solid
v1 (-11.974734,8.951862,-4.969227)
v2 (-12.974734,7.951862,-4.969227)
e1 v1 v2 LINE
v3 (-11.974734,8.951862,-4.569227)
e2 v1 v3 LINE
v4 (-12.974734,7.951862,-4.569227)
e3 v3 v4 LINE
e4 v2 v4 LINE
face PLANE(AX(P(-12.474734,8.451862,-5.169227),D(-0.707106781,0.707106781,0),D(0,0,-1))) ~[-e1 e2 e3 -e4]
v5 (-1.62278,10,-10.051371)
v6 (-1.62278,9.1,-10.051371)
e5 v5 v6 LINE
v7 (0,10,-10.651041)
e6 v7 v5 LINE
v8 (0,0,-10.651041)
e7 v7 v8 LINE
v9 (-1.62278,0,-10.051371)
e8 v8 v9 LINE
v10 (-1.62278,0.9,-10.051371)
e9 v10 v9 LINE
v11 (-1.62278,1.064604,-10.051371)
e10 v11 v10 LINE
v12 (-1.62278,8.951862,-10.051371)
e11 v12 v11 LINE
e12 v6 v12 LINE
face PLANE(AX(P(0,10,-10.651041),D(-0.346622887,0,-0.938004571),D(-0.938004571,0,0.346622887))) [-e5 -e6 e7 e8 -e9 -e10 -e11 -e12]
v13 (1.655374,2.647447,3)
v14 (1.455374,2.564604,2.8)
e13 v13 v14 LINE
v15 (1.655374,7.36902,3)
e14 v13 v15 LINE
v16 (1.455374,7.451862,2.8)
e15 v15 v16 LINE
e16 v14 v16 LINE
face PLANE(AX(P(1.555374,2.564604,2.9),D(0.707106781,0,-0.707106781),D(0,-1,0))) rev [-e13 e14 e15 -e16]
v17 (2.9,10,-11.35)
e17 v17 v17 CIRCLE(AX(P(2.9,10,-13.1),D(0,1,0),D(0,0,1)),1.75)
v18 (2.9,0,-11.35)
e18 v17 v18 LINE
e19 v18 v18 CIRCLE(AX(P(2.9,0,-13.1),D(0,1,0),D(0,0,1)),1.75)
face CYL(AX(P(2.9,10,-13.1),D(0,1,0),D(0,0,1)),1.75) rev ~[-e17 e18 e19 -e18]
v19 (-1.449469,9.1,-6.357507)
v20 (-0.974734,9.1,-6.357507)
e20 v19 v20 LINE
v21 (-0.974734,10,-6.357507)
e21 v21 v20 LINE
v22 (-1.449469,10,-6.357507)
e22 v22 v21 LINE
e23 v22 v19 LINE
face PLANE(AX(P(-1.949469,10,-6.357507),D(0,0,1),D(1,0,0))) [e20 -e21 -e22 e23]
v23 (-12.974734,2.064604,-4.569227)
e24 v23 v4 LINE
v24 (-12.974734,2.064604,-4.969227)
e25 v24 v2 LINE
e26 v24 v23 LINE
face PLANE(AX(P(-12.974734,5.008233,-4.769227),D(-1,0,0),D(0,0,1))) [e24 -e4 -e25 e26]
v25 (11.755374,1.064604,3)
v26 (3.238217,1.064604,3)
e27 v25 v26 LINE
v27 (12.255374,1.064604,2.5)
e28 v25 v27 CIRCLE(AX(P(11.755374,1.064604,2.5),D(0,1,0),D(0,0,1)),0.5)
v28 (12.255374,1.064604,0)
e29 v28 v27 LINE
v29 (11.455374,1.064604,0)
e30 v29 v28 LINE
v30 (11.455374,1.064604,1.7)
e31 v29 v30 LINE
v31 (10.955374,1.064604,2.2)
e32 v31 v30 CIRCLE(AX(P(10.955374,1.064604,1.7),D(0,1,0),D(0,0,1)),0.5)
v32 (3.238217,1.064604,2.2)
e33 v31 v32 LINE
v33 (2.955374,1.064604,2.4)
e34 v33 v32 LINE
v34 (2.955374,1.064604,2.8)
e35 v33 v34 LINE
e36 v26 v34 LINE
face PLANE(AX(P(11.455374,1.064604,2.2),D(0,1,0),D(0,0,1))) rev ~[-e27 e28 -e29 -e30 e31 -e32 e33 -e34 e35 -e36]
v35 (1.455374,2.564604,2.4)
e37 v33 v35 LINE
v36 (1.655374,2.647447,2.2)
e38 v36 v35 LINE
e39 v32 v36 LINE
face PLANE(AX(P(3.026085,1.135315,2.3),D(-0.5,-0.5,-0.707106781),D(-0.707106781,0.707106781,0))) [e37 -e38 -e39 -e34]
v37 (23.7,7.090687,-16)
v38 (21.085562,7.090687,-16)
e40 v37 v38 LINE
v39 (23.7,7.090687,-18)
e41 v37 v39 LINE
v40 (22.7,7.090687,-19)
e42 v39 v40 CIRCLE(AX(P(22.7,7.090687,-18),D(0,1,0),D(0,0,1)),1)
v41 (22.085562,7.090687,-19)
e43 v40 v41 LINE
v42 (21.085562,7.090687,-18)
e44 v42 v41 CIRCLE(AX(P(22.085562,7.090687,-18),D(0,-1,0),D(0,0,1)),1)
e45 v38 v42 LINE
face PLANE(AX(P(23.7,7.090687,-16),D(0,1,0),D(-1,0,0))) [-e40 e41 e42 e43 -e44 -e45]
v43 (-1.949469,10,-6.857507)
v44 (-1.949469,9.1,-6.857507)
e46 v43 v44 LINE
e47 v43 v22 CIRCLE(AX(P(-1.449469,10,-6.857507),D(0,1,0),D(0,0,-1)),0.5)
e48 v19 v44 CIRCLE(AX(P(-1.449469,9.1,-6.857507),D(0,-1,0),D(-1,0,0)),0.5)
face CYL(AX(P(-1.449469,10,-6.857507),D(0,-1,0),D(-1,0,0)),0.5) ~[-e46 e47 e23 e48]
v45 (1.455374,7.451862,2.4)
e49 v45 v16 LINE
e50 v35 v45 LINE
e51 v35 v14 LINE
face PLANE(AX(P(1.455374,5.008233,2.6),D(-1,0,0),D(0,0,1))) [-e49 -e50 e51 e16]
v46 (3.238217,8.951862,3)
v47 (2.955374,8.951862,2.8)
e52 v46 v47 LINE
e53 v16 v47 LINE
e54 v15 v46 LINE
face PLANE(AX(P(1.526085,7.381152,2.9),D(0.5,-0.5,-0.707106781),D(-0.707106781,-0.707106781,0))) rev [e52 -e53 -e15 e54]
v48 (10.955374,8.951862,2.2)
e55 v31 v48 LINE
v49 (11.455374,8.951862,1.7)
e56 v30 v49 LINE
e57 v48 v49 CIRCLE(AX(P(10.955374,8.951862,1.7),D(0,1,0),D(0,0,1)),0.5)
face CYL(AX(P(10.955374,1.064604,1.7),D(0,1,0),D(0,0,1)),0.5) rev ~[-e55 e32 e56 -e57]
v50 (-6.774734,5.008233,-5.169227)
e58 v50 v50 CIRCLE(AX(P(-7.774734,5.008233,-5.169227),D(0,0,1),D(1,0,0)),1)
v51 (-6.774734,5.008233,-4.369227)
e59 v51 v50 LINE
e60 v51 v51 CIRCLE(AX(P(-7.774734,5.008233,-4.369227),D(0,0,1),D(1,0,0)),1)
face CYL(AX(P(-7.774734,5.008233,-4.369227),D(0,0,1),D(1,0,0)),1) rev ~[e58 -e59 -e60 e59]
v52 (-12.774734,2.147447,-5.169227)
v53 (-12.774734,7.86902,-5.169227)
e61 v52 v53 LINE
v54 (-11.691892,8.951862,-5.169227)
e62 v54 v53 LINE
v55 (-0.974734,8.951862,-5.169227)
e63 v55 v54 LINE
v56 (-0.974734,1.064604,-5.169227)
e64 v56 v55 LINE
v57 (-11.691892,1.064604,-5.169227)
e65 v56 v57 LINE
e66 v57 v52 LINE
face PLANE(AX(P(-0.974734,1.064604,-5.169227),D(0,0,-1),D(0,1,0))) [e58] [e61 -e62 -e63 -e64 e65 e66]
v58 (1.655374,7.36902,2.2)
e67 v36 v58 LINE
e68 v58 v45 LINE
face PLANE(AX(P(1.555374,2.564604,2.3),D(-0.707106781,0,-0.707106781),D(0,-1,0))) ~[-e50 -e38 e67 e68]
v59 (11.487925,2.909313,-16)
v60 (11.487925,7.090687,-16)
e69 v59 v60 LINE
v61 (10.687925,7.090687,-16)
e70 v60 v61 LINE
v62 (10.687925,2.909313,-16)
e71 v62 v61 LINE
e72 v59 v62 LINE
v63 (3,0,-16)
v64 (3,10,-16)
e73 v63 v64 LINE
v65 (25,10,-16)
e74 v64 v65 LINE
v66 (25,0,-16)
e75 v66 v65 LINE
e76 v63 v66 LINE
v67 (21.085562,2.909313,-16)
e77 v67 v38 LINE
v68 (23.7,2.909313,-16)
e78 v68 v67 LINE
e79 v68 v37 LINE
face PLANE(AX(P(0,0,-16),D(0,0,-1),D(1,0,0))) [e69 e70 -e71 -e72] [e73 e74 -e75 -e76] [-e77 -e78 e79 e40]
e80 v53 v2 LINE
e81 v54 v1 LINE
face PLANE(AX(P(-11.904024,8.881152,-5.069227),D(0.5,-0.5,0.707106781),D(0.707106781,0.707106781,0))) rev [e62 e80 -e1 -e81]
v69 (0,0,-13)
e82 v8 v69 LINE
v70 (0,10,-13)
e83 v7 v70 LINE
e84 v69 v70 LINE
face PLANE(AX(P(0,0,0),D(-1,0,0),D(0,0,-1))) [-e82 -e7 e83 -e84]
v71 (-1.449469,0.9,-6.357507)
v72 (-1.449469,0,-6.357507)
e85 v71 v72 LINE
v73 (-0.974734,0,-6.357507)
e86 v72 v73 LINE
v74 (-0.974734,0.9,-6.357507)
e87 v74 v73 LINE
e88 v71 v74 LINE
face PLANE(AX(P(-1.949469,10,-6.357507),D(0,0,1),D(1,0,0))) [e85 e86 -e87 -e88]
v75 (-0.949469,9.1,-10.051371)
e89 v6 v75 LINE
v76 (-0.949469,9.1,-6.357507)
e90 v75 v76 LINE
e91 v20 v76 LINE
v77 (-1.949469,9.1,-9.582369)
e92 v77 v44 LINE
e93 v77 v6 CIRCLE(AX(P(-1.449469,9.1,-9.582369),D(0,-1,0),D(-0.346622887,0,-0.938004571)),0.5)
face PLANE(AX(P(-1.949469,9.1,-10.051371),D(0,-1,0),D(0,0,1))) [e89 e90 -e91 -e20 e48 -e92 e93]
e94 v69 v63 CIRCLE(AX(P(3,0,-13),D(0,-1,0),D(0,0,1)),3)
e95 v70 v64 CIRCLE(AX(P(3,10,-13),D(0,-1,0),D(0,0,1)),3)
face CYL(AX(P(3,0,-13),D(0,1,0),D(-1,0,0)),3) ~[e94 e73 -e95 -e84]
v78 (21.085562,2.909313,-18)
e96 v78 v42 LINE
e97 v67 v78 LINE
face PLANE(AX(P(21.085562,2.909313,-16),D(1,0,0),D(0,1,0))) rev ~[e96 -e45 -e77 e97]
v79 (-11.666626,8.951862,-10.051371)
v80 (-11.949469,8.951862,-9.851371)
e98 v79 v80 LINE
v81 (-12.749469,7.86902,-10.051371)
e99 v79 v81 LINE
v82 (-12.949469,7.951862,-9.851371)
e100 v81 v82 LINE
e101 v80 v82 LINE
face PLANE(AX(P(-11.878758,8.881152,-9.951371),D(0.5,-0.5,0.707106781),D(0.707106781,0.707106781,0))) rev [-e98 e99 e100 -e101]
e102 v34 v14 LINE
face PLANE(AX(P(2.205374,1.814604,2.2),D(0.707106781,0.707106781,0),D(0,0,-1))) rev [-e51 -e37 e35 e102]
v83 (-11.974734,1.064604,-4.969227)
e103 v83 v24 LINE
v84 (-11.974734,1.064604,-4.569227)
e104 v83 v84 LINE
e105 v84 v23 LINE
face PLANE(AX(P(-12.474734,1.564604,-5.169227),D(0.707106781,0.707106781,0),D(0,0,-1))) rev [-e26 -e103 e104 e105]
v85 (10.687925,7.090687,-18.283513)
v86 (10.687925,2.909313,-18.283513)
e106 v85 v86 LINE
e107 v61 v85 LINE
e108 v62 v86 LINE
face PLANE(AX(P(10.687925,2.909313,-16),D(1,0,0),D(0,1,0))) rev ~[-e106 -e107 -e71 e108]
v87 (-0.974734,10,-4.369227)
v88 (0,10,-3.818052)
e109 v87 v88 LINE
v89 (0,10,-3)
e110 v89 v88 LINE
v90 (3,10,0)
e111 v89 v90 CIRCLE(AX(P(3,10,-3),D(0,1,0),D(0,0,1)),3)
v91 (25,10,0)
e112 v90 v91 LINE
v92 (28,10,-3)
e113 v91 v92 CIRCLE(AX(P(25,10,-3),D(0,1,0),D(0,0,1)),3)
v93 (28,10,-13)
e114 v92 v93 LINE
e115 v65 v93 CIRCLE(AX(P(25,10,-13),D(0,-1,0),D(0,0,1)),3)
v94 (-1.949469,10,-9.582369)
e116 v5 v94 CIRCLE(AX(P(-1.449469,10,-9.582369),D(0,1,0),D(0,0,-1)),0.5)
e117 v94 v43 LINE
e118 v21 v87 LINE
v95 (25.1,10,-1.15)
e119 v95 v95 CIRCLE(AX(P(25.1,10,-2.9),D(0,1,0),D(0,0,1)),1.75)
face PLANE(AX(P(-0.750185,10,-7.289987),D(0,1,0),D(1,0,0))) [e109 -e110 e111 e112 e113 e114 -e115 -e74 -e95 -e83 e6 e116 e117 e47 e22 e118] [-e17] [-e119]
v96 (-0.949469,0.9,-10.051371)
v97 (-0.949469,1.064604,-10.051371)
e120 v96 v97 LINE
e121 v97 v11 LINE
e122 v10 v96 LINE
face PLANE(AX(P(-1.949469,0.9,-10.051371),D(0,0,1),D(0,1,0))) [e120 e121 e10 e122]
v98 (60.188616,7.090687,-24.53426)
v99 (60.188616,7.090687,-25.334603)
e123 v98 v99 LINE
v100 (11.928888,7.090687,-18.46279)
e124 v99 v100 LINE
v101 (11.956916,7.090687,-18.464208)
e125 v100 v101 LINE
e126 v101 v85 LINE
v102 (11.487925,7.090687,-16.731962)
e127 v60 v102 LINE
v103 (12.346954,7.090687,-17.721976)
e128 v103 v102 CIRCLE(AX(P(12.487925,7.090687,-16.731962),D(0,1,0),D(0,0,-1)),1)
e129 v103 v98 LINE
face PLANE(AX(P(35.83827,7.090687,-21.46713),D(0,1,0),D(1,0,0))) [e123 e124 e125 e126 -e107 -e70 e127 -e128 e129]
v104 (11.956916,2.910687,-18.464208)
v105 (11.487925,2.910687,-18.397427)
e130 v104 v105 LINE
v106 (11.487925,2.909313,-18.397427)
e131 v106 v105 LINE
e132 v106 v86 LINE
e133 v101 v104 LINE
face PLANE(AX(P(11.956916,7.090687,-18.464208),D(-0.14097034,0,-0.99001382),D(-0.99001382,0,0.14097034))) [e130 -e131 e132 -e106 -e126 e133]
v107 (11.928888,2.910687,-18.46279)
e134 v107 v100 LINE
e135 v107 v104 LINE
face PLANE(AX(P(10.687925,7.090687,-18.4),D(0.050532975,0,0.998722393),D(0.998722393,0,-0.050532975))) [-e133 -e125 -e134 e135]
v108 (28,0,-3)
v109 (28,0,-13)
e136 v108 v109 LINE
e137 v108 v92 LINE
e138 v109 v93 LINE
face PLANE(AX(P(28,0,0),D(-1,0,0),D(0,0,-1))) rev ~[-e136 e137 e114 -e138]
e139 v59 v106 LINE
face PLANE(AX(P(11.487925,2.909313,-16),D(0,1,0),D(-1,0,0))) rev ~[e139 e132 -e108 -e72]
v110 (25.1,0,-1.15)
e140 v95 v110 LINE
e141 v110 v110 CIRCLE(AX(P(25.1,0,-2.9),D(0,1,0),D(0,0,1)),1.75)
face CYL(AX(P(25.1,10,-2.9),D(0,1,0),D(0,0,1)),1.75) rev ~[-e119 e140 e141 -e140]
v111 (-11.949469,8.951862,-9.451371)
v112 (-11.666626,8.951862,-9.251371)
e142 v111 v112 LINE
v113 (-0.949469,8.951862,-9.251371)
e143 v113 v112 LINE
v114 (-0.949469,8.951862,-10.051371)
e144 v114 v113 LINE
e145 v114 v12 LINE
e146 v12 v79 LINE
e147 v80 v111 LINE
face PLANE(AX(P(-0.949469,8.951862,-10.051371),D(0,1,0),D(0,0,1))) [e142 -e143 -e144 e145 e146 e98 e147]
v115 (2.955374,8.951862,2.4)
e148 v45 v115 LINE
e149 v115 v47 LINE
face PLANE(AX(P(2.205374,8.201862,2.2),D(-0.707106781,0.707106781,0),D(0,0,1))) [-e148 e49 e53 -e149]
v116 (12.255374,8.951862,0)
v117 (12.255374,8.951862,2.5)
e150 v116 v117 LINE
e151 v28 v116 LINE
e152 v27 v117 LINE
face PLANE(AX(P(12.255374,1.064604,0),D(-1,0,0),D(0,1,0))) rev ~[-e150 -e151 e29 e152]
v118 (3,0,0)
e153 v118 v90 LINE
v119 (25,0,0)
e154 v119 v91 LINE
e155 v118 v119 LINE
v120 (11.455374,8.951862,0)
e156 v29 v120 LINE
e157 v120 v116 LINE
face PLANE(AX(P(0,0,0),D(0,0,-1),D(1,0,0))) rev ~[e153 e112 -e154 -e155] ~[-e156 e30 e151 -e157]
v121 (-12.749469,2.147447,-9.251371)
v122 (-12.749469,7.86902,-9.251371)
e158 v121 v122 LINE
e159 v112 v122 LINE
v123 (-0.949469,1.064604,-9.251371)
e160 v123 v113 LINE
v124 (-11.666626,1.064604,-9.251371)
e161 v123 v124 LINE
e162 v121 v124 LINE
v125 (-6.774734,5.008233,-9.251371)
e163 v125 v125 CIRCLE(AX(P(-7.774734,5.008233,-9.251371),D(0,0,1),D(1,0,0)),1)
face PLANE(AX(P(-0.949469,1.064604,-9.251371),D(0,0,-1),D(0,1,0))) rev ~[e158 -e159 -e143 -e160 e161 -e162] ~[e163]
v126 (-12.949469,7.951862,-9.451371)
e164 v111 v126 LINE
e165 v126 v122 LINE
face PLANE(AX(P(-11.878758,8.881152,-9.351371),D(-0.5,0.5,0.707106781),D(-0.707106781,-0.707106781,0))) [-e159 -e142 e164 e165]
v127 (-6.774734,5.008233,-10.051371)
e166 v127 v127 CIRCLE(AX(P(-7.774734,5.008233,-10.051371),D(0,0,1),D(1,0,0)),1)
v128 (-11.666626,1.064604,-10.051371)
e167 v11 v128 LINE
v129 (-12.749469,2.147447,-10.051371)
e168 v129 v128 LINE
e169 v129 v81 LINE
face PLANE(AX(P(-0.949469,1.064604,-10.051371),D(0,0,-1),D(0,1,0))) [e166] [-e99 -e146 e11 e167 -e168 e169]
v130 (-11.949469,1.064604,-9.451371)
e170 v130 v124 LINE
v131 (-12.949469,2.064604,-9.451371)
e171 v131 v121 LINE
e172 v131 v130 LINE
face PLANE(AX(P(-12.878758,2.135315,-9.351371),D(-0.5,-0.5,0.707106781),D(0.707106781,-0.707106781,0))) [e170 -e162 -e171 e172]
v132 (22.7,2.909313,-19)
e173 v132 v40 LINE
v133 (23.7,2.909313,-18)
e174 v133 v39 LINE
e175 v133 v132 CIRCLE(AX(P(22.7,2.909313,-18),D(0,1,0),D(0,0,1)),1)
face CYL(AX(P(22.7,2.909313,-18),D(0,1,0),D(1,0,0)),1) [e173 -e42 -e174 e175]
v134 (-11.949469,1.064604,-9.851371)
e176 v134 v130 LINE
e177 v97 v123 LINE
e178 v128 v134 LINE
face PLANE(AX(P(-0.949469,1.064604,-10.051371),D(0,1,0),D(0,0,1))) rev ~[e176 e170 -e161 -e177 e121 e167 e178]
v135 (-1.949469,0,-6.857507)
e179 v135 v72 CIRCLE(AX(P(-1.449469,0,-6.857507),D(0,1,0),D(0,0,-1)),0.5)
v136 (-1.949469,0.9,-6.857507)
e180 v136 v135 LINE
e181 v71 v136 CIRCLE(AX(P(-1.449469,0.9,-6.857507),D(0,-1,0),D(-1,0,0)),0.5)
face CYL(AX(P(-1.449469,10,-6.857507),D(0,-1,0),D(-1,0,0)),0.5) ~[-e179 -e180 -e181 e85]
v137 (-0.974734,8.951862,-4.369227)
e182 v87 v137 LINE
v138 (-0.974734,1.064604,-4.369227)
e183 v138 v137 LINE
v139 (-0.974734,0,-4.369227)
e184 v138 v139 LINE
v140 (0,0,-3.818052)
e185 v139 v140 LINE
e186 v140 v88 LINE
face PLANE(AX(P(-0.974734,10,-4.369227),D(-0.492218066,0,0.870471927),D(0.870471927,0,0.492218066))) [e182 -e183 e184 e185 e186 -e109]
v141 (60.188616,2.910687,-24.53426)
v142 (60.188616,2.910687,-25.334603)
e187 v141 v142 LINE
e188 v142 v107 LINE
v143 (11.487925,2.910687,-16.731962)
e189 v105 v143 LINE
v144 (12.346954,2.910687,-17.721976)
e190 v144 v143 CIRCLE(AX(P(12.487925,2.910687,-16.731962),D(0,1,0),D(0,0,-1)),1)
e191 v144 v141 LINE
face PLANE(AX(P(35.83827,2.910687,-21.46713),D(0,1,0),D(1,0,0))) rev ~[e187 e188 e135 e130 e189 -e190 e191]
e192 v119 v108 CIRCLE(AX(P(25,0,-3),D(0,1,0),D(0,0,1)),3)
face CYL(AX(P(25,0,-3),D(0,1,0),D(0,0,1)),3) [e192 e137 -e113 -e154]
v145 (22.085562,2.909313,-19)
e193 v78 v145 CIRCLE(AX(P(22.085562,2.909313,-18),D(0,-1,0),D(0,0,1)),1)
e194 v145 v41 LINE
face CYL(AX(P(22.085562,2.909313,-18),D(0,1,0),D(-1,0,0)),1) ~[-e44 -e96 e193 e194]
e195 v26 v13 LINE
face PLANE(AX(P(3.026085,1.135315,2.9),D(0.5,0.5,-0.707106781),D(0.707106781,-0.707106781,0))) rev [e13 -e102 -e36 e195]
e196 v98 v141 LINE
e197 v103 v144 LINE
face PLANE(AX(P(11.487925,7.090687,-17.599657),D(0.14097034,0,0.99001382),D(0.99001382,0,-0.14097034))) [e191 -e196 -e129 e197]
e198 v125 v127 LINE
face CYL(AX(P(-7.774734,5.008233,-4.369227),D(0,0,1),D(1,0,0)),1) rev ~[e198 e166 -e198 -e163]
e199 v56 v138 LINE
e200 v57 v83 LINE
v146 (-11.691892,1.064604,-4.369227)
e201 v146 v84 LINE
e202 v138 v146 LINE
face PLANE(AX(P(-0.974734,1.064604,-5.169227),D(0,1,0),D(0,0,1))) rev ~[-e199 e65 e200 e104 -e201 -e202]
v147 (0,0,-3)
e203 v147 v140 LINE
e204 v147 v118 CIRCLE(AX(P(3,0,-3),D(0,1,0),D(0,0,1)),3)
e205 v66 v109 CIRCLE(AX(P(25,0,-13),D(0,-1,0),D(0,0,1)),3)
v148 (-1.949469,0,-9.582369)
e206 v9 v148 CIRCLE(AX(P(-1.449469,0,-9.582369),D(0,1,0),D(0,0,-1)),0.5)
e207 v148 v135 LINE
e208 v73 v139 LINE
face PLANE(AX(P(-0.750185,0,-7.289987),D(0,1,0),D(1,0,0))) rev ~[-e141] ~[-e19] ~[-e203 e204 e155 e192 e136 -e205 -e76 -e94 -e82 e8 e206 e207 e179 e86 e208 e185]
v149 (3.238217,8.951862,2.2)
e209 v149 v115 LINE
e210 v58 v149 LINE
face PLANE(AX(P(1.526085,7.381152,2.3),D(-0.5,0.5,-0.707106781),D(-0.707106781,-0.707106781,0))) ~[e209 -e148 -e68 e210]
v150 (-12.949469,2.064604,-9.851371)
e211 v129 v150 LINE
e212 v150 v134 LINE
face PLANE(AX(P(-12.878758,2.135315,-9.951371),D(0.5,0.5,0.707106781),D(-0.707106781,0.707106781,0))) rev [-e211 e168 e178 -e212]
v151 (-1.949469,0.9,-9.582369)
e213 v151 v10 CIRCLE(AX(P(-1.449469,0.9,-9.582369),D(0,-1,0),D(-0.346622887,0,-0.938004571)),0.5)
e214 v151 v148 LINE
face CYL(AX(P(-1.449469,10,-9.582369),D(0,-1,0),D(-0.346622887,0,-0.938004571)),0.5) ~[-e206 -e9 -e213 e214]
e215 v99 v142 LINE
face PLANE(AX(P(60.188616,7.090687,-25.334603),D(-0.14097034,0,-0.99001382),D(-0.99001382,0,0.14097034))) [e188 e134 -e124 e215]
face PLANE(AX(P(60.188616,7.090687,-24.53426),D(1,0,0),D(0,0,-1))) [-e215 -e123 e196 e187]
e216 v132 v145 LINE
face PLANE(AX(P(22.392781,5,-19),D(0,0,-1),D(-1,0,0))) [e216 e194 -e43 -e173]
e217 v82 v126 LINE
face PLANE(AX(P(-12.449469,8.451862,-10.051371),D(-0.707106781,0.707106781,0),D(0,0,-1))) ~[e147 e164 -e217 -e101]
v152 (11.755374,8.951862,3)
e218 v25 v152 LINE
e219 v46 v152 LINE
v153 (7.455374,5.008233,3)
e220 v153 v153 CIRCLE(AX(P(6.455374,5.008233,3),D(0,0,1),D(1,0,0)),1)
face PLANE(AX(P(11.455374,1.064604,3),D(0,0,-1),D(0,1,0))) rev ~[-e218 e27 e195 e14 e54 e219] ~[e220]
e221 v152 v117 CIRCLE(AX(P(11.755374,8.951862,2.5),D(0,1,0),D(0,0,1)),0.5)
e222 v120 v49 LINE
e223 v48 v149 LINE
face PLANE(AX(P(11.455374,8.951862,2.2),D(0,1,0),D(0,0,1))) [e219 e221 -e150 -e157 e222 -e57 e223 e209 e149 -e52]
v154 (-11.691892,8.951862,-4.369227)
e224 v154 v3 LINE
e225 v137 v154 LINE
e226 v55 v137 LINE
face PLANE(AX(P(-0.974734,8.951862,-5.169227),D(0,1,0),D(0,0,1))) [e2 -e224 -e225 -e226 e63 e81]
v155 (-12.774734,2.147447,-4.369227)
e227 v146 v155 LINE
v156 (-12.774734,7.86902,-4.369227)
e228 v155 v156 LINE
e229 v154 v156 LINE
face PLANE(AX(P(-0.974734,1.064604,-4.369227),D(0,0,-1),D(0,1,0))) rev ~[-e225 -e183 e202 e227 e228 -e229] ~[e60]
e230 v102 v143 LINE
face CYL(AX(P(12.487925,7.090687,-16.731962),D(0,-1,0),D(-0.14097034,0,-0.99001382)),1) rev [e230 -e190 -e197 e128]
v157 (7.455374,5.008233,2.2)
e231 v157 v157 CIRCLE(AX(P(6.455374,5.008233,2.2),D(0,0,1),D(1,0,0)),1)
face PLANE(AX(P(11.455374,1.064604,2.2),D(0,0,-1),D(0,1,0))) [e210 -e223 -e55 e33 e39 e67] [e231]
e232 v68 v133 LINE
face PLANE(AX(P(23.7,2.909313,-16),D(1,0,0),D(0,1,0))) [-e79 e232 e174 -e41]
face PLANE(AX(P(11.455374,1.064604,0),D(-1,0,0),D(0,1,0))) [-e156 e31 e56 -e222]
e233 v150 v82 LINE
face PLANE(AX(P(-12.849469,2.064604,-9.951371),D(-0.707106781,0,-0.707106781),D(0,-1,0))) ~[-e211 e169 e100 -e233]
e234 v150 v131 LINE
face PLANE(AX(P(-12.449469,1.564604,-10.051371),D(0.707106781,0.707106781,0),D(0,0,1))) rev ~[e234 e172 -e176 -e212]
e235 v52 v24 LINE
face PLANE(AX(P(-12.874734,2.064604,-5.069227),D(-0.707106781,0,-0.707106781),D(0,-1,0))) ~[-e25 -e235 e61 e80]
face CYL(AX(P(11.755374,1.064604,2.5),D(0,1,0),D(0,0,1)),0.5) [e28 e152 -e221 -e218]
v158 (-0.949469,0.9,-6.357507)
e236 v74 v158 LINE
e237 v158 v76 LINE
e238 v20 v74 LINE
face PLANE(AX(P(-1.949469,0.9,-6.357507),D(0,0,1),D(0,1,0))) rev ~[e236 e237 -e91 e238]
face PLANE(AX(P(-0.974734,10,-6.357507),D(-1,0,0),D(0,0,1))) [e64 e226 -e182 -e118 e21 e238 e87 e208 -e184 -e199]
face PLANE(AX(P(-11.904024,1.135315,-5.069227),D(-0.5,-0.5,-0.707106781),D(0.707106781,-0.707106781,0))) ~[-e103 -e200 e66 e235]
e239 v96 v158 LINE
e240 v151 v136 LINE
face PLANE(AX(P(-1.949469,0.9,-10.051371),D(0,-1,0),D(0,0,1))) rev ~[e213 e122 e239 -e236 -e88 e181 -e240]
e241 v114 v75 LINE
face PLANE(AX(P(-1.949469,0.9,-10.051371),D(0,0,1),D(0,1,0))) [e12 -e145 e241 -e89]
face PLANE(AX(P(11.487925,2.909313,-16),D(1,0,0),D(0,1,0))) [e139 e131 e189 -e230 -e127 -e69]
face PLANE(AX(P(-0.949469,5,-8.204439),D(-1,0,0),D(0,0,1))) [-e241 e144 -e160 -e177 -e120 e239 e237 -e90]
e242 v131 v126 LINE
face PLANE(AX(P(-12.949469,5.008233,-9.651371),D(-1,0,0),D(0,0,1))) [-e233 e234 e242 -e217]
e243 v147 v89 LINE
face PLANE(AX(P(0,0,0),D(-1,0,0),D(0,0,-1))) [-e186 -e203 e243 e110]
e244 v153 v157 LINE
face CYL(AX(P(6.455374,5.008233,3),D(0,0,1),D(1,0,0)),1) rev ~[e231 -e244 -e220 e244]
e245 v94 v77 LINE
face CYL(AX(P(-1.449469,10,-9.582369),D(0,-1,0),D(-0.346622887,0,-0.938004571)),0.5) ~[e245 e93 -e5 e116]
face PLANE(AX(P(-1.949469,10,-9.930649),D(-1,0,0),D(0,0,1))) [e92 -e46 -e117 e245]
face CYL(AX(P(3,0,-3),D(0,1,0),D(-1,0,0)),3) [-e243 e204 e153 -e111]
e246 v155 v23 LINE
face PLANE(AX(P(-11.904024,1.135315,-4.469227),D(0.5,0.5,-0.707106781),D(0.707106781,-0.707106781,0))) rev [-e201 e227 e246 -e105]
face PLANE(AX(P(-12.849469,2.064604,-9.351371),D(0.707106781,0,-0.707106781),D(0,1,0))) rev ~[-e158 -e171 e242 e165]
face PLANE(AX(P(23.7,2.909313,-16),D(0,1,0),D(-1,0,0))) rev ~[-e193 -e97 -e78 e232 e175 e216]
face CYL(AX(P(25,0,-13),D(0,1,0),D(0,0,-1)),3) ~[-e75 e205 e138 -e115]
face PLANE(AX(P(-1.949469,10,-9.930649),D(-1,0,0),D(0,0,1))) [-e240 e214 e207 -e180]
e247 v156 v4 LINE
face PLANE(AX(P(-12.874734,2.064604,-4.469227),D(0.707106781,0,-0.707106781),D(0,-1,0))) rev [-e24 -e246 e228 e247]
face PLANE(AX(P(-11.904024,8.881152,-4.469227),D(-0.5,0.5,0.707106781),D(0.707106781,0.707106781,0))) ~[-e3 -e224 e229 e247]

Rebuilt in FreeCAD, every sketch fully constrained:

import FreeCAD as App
import Part
import Sketcher
from FreeCAD import Vector


def edges_at(feature, points):
    """Names of the edges that pass closest to the given points."""
    edges = feature.Shape.Edges
    near = lambda p: min(range(len(edges)), key=lambda i: edges[i].distToShape(Part.Vertex(*p))[0])
    return sorted({f"Edge{near(p) + 1}" for p in points})

doc = App.newDocument("Part")
body = doc.addObject("PartDesign::Body", "Body")

# Sketch on XZ plane
sketch1 = doc.addObject("Sketcher::SketchObject", "Sketch")
body.addObject(sketch1)
sketch1.AttachmentSupport = (doc.XZ_Plane, [""])
sketch1.MapMode = "FlatFace"
sketch1.addGeometry([
    Part.LineSegment(Vector(0, -16, 0), Vector(0, 0, 0)),
    Part.LineSegment(Vector(0, 0, 0), Vector(28, 0, 0)),
    Part.LineSegment(Vector(28, 0, 0), Vector(28, -16, 0)),
    Part.LineSegment(Vector(28, -16, 0), Vector(0, -16, 0)),
], False)
sketch1.addConstraint([
    Sketcher.Constraint("Coincident", 0, 2, 1, 1),
    Sketcher.Constraint("Coincident", 1, 2, 2, 1),
    Sketcher.Constraint("Coincident", 2, 2, 3, 1),
    Sketcher.Constraint("Coincident", 3, 2, 0, 1),
    Sketcher.Constraint("Vertical", 0),
    Sketcher.Constraint("Horizontal", 1),
    Sketcher.Constraint("Vertical", 2),
    Sketcher.Constraint("Horizontal", 3),
    Sketcher.Constraint("Coincident", 0, 2, -1, 1),
    Sketcher.Constraint("DistanceX", 1, 1, 1, 2, 28.0),
    Sketcher.Constraint("DistanceY", 0, 1, 0, 2, 16.0),
])
pad1 = doc.addObject("PartDesign::Pad", "Pad")
body.addObject(pad1)
pad1.Profile = sketch1
pad1.Length = 10
pad1.Reversed = True

# Sketch on XZ plane
sketch2 = doc.addObject("Sketcher::SketchObject", "Sketch001")
body.addObject(sketch2)
sketch2.AttachmentSupport = (doc.XZ_Plane, [""])
sketch2.MapMode = "FlatFace"
sketch2.AttachmentOffset = App.Placement(Vector(0, 0, -10), App.Rotation())
sketch2.addGeometry([
    Part.Circle(Vector(2.9, -13.1, 0), Vector(0, 0, 1), 1.75),
    Part.Circle(Vector(25.1, -2.9, 0), Vector(0, 0, 1), 1.75),
], False)
sketch2.addConstraint([
    Sketcher.Constraint("Equal", 0, 1),
    Sketcher.Constraint("Diameter", 0, 3.5),
    Sketcher.Constraint("DistanceX", -1, 1, 0, 3, 2.9),
    Sketcher.Constraint("DistanceY", 0, 3, -1, 1, 13.1),
    Sketcher.Constraint("DistanceX", -1, 1, 1, 3, 25.1),
    Sketcher.Constraint("DistanceY", 1, 3, -1, 1, 2.9),
])
pocket1 = doc.addObject("PartDesign::Pocket", "Pocket")
body.addObject(pocket1)
pocket1.Profile = sketch2
pocket1.Length = 10
pocket1.Reversed = True
doc.recompute()

fillet = doc.addObject("PartDesign::Fillet", "Fillet")
body.addObject(fillet)
fillet.Base = (pocket1, edges_at(pocket1, [(0, 5, -16), (28, 5, 0)]))
fillet.Radius = 3
doc.recompute()

fillet2 = doc.addObject("PartDesign::Fillet", "Fillet001")
body.addObject(fillet2)
fillet2.Base = (fillet, edges_at(fillet, [(28, 5, -16), (0, 5, 0)]))
fillet2.Radius = 3

# Sketch on XZ plane
sketch3 = doc.addObject("Sketcher::SketchObject", "Sketch002")
body.addObject(sketch3)
sketch3.AttachmentSupport = (doc.XZ_Plane, [""])
sketch3.MapMode = "FlatFace"
sketch3.AttachmentOffset = App.Placement(Vector(0, 0, -10), App.Rotation())
sketch3.addGeometry([
    Part.LineSegment(Vector(0, -10.651041, 0), Vector(-1.949469, -9.930649, 0)),  # 0
    Part.LineSegment(Vector(-1.949469, -9.930649, 0), Vector(-1.949469, -6.357507, 0)),  # 1
    Part.LineSegment(Vector(-1.949469, -6.357507, 0), Vector(-0.974734, -6.357507, 0)),  # 2
    Part.LineSegment(Vector(-0.974734, -6.357507, 0), Vector(-0.974734, -4.369227, 0)),  # 3
    Part.LineSegment(Vector(-0.974734, -4.369227, 0), Vector(0.098483, -3.762364, 0)),  # 4
    Part.LineSegment(Vector(0.098483, -3.762364, 0), Vector(0, -10.651041, 0)),  # 5
], False)
sketch3.addConstraint([
    Sketcher.Constraint("Coincident", 0, 2, 1, 1),
    Sketcher.Constraint("Coincident", 1, 2, 2, 1),
    Sketcher.Constraint("Coincident", 2, 2, 3, 1),
    Sketcher.Constraint("Coincident", 3, 2, 4, 1),
    Sketcher.Constraint("Coincident", 4, 2, 5, 1),
    Sketcher.Constraint("Coincident", 5, 2, 0, 1),
    Sketcher.Constraint("Vertical", 1),
    Sketcher.Constraint("Horizontal", 2),
    Sketcher.Constraint("Vertical", 3),
    Sketcher.Constraint("PointOnObject", 5, 2, -2),
    Sketcher.Constraint("DistanceY", 3, 1, 3, 2, 1.988281),
    Sketcher.Constraint("Distance", 5, 6.889381),
    Sketcher.Constraint("DistanceX", 2, 1, 2, 2, 0.974734),
    Sketcher.Constraint("DistanceY", 1, 1, 1, 2, 3.573142),
    Sketcher.Constraint("DistanceX", 0, 2, -1, 1, 1.949469),
    Sketcher.Constraint("DistanceY", 0, 2, -1, 1, 9.930649),
    Sketcher.Constraint("DistanceY", 5, 2, -1, 1, 10.651041),
    Sketcher.Constraint("DistanceX", 1, 2, 4, 2, 2.047952),
])
pad2 = doc.addObject("PartDesign::Pad", "Pad001")
body.addObject(pad2)
pad2.Profile = sketch3
pad2.Length = 10
doc.recompute()

fillet3 = doc.addObject("PartDesign::Fillet", "Fillet002")
body.addObject(fillet3)
fillet3.Base = (pad2, edges_at(pad2, [(-1.949, 5, -9.931)]))
fillet3.Radius = 0.5
doc.recompute()

fillet4 = doc.addObject("PartDesign::Fillet", "Fillet003")
body.addObject(fillet4)
fillet4.Base = (fillet3, edges_at(fillet3, [(-1.949, 5, -6.358)]))
fillet4.Radius = 0.5

# Sketch on YZ plane
sketch4 = doc.addObject("Sketcher::SketchObject", "Sketch003")
body.addObject(sketch4)
sketch4.AttachmentSupport = (doc.YZ_Plane, [""])
sketch4.MapMode = "FlatFace"
sketch4.AttachmentOffset = App.Placement(Vector(0, 0, -1.949469), App.Rotation())
sketch4.addGeometry([
    Part.LineSegment(Vector(9.1, -10.051371, 0), Vector(0.9, -10.051371, 0)),
    Part.LineSegment(Vector(0.9, -10.051371, 0), Vector(0.9, -6.357507, 0)),
    Part.LineSegment(Vector(0.9, -6.357507, 0), Vector(9.1, -6.357507, 0)),
    Part.LineSegment(Vector(9.1, -6.357507, 0), Vector(9.1, -10.051371, 0)),
], False)
sketch4.addConstraint([
    Sketcher.Constraint("Coincident", 0, 2, 1, 1),
    Sketcher.Constraint("Coincident", 1, 2, 2, 1),
    Sketcher.Constraint("Coincident", 2, 2, 3, 1),
    Sketcher.Constraint("Coincident", 3, 2, 0, 1),
    Sketcher.Constraint("Horizontal", 0),
    Sketcher.Constraint("Vertical", 1),
    Sketcher.Constraint("Horizontal", 2),
    Sketcher.Constraint("Vertical", 3),
    Sketcher.Constraint("DistanceX", 0, 2, 0, 1, 8.2),
    Sketcher.Constraint("DistanceX", -1, 1, 0, 2, 0.9),
    Sketcher.Constraint("DistanceY", 1, 1, 1, 2, 3.693864),
    Sketcher.Constraint("DistanceY", 0, 2, -1, 1, 10.051371),
])
pocket2 = doc.addObject("PartDesign::Pocket", "Pocket001")
body.addObject(pocket2)
pocket2.Profile = sketch4
pocket2.Length = 1
pocket2.Reversed = True

# Sketch on YZ plane
sketch5 = doc.addObject("Sketcher::SketchObject", "Sketch004")
body.addObject(sketch5)
sketch5.AttachmentSupport = (doc.YZ_Plane, [""])
sketch5.MapMode = "FlatFace"
sketch5.AttachmentOffset = App.Placement(Vector(0, 0, -0.949469), App.Rotation())
sketch5.addGeometry([
    Part.LineSegment(Vector(8.951862, -10.051371, 0), Vector(1.064604, -10.051371, 0)),
    Part.LineSegment(Vector(1.064604, -10.051371, 0), Vector(1.064604, -9.251371, 0)),
    Part.LineSegment(Vector(1.064604, -9.251371, 0), Vector(8.951862, -9.251371, 0)),
    Part.LineSegment(Vector(8.951862, -9.251371, 0), Vector(8.951862, -10.051371, 0)),
], False)
sketch5.addConstraint([
    Sketcher.Constraint("Coincident", 0, 2, 1, 1),
    Sketcher.Constraint("Coincident", 1, 2, 2, 1),
    Sketcher.Constraint("Coincident", 2, 2, 3, 1),
    Sketcher.Constraint("Coincident", 3, 2, 0, 1),
    Sketcher.Constraint("Horizontal", 0),
    Sketcher.Constraint("Vertical", 1),
    Sketcher.Constraint("Horizontal", 2),
    Sketcher.Constraint("Vertical", 3),
    Sketcher.Constraint("DistanceY", 1, 1, 1, 2, 0.8),
    Sketcher.Constraint("DistanceX", 0, 2, 0, 1, 7.887258),
    Sketcher.Constraint("DistanceY", 0, 2, -1, 1, 10.051371),
    Sketcher.Constraint("DistanceX", -1, 1, 0, 2, 1.064604),
])
pad3 = doc.addObject("PartDesign::Pad", "Pad002")
body.addObject(pad3)
pad3.Profile = sketch5
pad3.Length = 12
pad3.Reversed = True

# Sketch on YZ plane
sketch6 = doc.addObject("Sketcher::SketchObject", "Sketch005")
body.addObject(sketch6)
sketch6.AttachmentSupport = (doc.YZ_Plane, [""])
sketch6.MapMode = "FlatFace"
sketch6.AttachmentOffset = App.Placement(Vector(0, 0, -0.974734), App.Rotation())
sketch6.addGeometry([
    Part.LineSegment(Vector(8.951862, -5.169227, 0), Vector(1.064604, -5.169227, 0)),
    Part.LineSegment(Vector(1.064604, -5.169227, 0), Vector(1.064604, -4.369227, 0)),
    Part.LineSegment(Vector(1.064604, -4.369227, 0), Vector(8.951862, -4.369227, 0)),
    Part.LineSegment(Vector(8.951862, -4.369227, 0), Vector(8.951862, -5.169227, 0)),
], False)
sketch6.addConstraint([
    Sketcher.Constraint("Coincident", 0, 2, 1, 1),
    Sketcher.Constraint("Coincident", 1, 2, 2, 1),
    Sketcher.Constraint("Coincident", 2, 2, 3, 1),
    Sketcher.Constraint("Coincident", 3, 2, 0, 1),
    Sketcher.Constraint("Horizontal", 0),
    Sketcher.Constraint("Vertical", 1),
    Sketcher.Constraint("Horizontal", 2),
    Sketcher.Constraint("Vertical", 3),
    Sketcher.Constraint("DistanceY", 1, 1, 1, 2, 0.8),
    Sketcher.Constraint("DistanceX", 0, 2, 0, 1, 7.887258),
    Sketcher.Constraint("DistanceX", -1, 1, 0, 2, 1.064604),
    Sketcher.Constraint("DistanceY", 0, 2, -1, 1, 5.169227),
])
pad4 = doc.addObject("PartDesign::Pad", "Pad003")
body.addObject(pad4)
pad4.Profile = sketch6
pad4.Length = 12
pad4.Reversed = True
doc.recompute()

chamfer = doc.addObject("PartDesign::Chamfer", "Chamfer")
body.addObject(chamfer)
chamfer.Base = (pad4, edges_at(pad4, [
    (-12.949, 1.065, -9.651),
    (-12.949, 8.952, -9.651),
    (-12.975, 8.952, -4.769),
    (-12.975, 1.065, -4.769),
]))
chamfer.Size = 1
doc.recompute()

chamfer2 = doc.addObject("PartDesign::Chamfer", "Chamfer001")
body.addObject(chamfer2)
chamfer2.Base = (chamfer, edges_at(chamfer, [
    (-12.949, 5.008, -10.051),
    (-12.949, 5.008, -9.251),
    (-12.449, 8.452, -9.251),
    (-12.449, 1.565, -9.251),
    (-12.449, 8.452, -10.051),
    (-12.449, 1.565, -10.051),
    (-12.975, 5.008, -4.369),
    (-12.975, 5.008, -5.169),
    (-12.475, 8.452, -4.369),
    (-12.475, 1.565, -4.369),
    (-12.475, 8.452, -5.169),
    (-12.475, 1.565, -5.169),
]))
chamfer2.Size = 0.2

# Sketch on XY plane
sketch7 = doc.addObject("Sketcher::SketchObject", "Sketch006")
body.addObject(sketch7)
sketch7.AttachmentSupport = (doc.XY_Plane, [""])
sketch7.MapMode = "FlatFace"
sketch7.AttachmentOffset = App.Placement(Vector(0, 0, -4.369227), App.Rotation())
sketch7.addGeometry(Part.Circle(Vector(-7.774734, 5.008233, 0), Vector(0, 0, 1), 1), False)
sketch7.addConstraint([
    Sketcher.Constraint("Diameter", 0, 2.0),
    Sketcher.Constraint("DistanceX", 0, 3, -1, 1, 7.774734),
    Sketcher.Constraint("DistanceY", -1, 1, 0, 3, 5.008233),
])
pocket3 = doc.addObject("PartDesign::Pocket", "Pocket002")
body.addObject(pocket3)
pocket3.Profile = sketch7
pocket3.Length = 8

# Sketch on XY plane
sketch8 = doc.addObject("Sketcher::SketchObject", "Sketch007")
body.addObject(sketch8)
sketch8.AttachmentSupport = (doc.XY_Plane, [""])
sketch8.MapMode = "FlatFace"
sketch8.addGeometry([
    Part.LineSegment(Vector(11.455374, 8.951862, 0), Vector(11.455374, 1.064604, 0)),
    Part.LineSegment(Vector(11.455374, 1.064604, 0), Vector(12.255374, 1.064604, 0)),
    Part.LineSegment(Vector(12.255374, 1.064604, 0), Vector(12.255374, 8.951862, 0)),
    Part.LineSegment(Vector(12.255374, 8.951862, 0), Vector(11.455374, 8.951862, 0)),
], False)
sketch8.addConstraint([
    Sketcher.Constraint("Coincident", 0, 2, 1, 1),
    Sketcher.Constraint("Coincident", 1, 2, 2, 1),
    Sketcher.Constraint("Coincident", 2, 2, 3, 1),
    Sketcher.Constraint("Coincident", 3, 2, 0, 1),
    Sketcher.Constraint("Vertical", 0),
    Sketcher.Constraint("Horizontal", 1),
    Sketcher.Constraint("Vertical", 2),
    Sketcher.Constraint("Horizontal", 3),
    Sketcher.Constraint("DistanceX", 1, 1, 1, 2, 0.8),
    Sketcher.Constraint("DistanceY", 0, 2, 0, 1, 7.887258),
    Sketcher.Constraint("DistanceX", -1, 1, 0, 2, 11.455374),
    Sketcher.Constraint("DistanceY", -1, 1, 0, 2, 1.064604),
])
pad5 = doc.addObject("PartDesign::Pad", "Pad004")
body.addObject(pad5)
pad5.Profile = sketch8
pad5.Length = 3

# Sketch on YZ plane
sketch9 = doc.addObject("Sketcher::SketchObject", "Sketch008")
body.addObject(sketch9)
sketch9.AttachmentSupport = (doc.YZ_Plane, [""])
sketch9.MapMode = "FlatFace"
sketch9.AttachmentOffset = App.Placement(Vector(0, 0, 11.455374), App.Rotation())
sketch9.addGeometry([
    Part.LineSegment(Vector(8.951862, 2.2, 0), Vector(1.064604, 2.2, 0)),
    Part.LineSegment(Vector(1.064604, 2.2, 0), Vector(1.064604, 3, 0)),
    Part.LineSegment(Vector(1.064604, 3, 0), Vector(8.951862, 3, 0)),
    Part.LineSegment(Vector(8.951862, 3, 0), Vector(8.951862, 2.2, 0)),
], False)
sketch9.addConstraint([
    Sketcher.Constraint("Coincident", 0, 2, 1, 1),
    Sketcher.Constraint("Coincident", 1, 2, 2, 1),
    Sketcher.Constraint("Coincident", 2, 2, 3, 1),
    Sketcher.Constraint("Coincident", 3, 2, 0, 1),
    Sketcher.Constraint("Horizontal", 0),
    Sketcher.Constraint("Vertical", 1),
    Sketcher.Constraint("Horizontal", 2),
    Sketcher.Constraint("Vertical", 3),
    Sketcher.Constraint("DistanceY", 1, 1, 1, 2, 0.8),
    Sketcher.Constraint("DistanceY", -1, 1, 1, 2, 3.0),
    Sketcher.Constraint("DistanceX", 0, 2, 0, 1, 7.887258),
    Sketcher.Constraint("DistanceX", -1, 1, 0, 2, 1.064604),
])
pad6 = doc.addObject("PartDesign::Pad", "Pad005")
body.addObject(pad6)
pad6.Profile = sketch9
pad6.Length = 10
pad6.Reversed = True
doc.recompute()

fillet5 = doc.addObject("PartDesign::Fillet", "Fillet004")
body.addObject(fillet5)
fillet5.Base = (pad6, edges_at(pad6, [(11.455, 5.008, 2.2)]))
fillet5.Radius = 0.5
doc.recompute()

fillet6 = doc.addObject("PartDesign::Fillet", "Fillet005")
body.addObject(fillet6)
fillet6.Base = (fillet5, edges_at(fillet5, [(12.255, 5.008, 3)]))
fillet6.Radius = 0.5
doc.recompute()

chamfer3 = doc.addObject("PartDesign::Chamfer", "Chamfer002")
body.addObject(chamfer3)
chamfer3.Base = (fillet6, edges_at(fillet6, [(1.455, 8.952, 2.6), (1.455, 1.065, 2.6)]))
chamfer3.Size = 1.5
doc.recompute()

chamfer4 = doc.addObject("PartDesign::Chamfer", "Chamfer003")
body.addObject(chamfer4)
chamfer4.Base = (chamfer3, edges_at(chamfer3, [
    (1.455, 5.008, 3),
    (1.455, 5.008, 2.2),
    (2.205, 8.202, 3),
    (2.205, 1.815, 3),
    (2.205, 8.202, 2.2),
    (2.205, 1.815, 2.2),
]))
chamfer4.Size = 0.2

# Sketch on XY plane
sketch10 = doc.addObject("Sketcher::SketchObject", "Sketch009")
body.addObject(sketch10)
sketch10.AttachmentSupport = (doc.XY_Plane, [""])
sketch10.MapMode = "FlatFace"
sketch10.AttachmentOffset = App.Placement(Vector(0, 0, 3), App.Rotation())
sketch10.addGeometry(Part.Circle(Vector(6.455374, 5.008233, 0), Vector(0, 0, 1), 1), False)
sketch10.addConstraint([
    Sketcher.Constraint("Diameter", 0, 2.0),
    Sketcher.Constraint("DistanceX", -1, 1, 0, 3, 6.455374),
    Sketcher.Constraint("DistanceY", -1, 1, 0, 3, 5.008233),
])
pocket4 = doc.addObject("PartDesign::Pocket", "Pocket003")
body.addObject(pocket4)
pocket4.Profile = sketch10
pocket4.Length = 1

# Sketch on XY plane
sketch11 = doc.addObject("Sketcher::SketchObject", "Sketch010")
body.addObject(sketch11)
sketch11.AttachmentSupport = (doc.XY_Plane, [""])
sketch11.MapMode = "FlatFace"
sketch11.AttachmentOffset = App.Placement(Vector(0, 0, -16), App.Rotation())
sketch11.addGeometry([
    Part.LineSegment(Vector(23.7, 7.090687, 0), Vector(23.7, 2.909313, 0)),
    Part.LineSegment(Vector(23.7, 2.909313, 0), Vector(21.085562, 2.909313, 0)),
    Part.LineSegment(Vector(21.085562, 2.909313, 0), Vector(21.085562, 7.090687, 0)),
    Part.LineSegment(Vector(21.085562, 7.090687, 0), Vector(23.7, 7.090687, 0)),
], False)
sketch11.addConstraint([
    Sketcher.Constraint("Coincident", 0, 2, 1, 1),
    Sketcher.Constraint("Coincident", 1, 2, 2, 1),
    Sketcher.Constraint("Coincident", 2, 2, 3, 1),
    Sketcher.Constraint("Coincident", 3, 2, 0, 1),
    Sketcher.Constraint("Vertical", 0),
    Sketcher.Constraint("Horizontal", 1),
    Sketcher.Constraint("Vertical", 2),
    Sketcher.Constraint("Horizontal", 3),
    Sketcher.Constraint("DistanceX", -1, 1, 0, 2, 23.7),
    Sketcher.Constraint("DistanceX", 1, 2, 1, 1, 2.614438),
    Sketcher.Constraint("DistanceY", 0, 2, 0, 1, 4.181374),
    Sketcher.Constraint("DistanceY", -1, 1, 0, 2, 2.909313),
])
pad7 = doc.addObject("PartDesign::Pad", "Pad006")
body.addObject(pad7)
pad7.Profile = sketch11
pad7.Length = 3
pad7.Reversed = True
doc.recompute()

fillet7 = doc.addObject("PartDesign::Fillet", "Fillet006")
body.addObject(fillet7)
fillet7.Base = (pad7, edges_at(pad7, [(23.7, 5, -19), (21.086, 5, -19)]))
fillet7.Radius = 1

# Sketch on XY plane
sketch12 = doc.addObject("Sketcher::SketchObject", "Sketch011")
body.addObject(sketch12)
sketch12.AttachmentSupport = (doc.XY_Plane, [""])
sketch12.MapMode = "FlatFace"
sketch12.AttachmentOffset = App.Placement(Vector(0, 0, -16), App.Rotation())
sketch12.addGeometry([
    Part.LineSegment(Vector(11.487925, 7.090687, 0), Vector(11.487925, 2.909313, 0)),
    Part.LineSegment(Vector(11.487925, 2.909313, 0), Vector(10.687925, 2.909313, 0)),
    Part.LineSegment(Vector(10.687925, 2.909313, 0), Vector(10.687925, 7.090687, 0)),
    Part.LineSegment(Vector(10.687925, 7.090687, 0), Vector(11.487925, 7.090687, 0)),
], False)
sketch12.addConstraint([
    Sketcher.Constraint("Coincident", 0, 2, 1, 1),
    Sketcher.Constraint("Coincident", 1, 2, 2, 1),
    Sketcher.Constraint("Coincident", 2, 2, 3, 1),
    Sketcher.Constraint("Coincident", 3, 2, 0, 1),
    Sketcher.Constraint("Vertical", 0),
    Sketcher.Constraint("Horizontal", 1),
    Sketcher.Constraint("Vertical", 2),
    Sketcher.Constraint("Horizontal", 3),
    Sketcher.Constraint("DistanceX", 1, 2, 1, 1, 0.8),
    Sketcher.Constraint("DistanceY", 0, 2, 0, 1, 4.181374),
    Sketcher.Constraint("DistanceX", -1, 1, 0, 2, 11.487925),
    Sketcher.Constraint("DistanceY", -1, 1, 0, 2, 2.909313),
])
pad8 = doc.addObject("PartDesign::Pad", "Pad007")
body.addObject(pad8)
pad8.Profile = sketch12
pad8.Length = 2.4
pad8.Reversed = True

# Sketch on XZ plane
sketch13 = doc.addObject("Sketcher::SketchObject", "Sketch012")
body.addObject(sketch13)
sketch13.AttachmentSupport = (doc.XZ_Plane, [""])
sketch13.MapMode = "FlatFace"
sketch13.AttachmentOffset = App.Placement(Vector(0, 0, -7.090687), App.Rotation())
sketch13.addGeometry([
    Part.LineSegment(Vector(60.188616, -25.334603, 0), Vector(11.487925, -18.4, 0)),
    Part.LineSegment(Vector(11.487925, -18.4, 0), Vector(11.487925, -17.599657, 0)),
    Part.LineSegment(Vector(11.487925, -17.599657, 0), Vector(60.188616, -24.53426, 0)),
    Part.LineSegment(Vector(60.188616, -24.53426, 0), Vector(60.188616, -25.334603, 0)),
], False)
sketch13.addConstraint([
    Sketcher.Constraint("Coincident", 0, 2, 1, 1),
    Sketcher.Constraint("Coincident", 1, 2, 2, 1),
    Sketcher.Constraint("Coincident", 2, 2, 3, 1),
    Sketcher.Constraint("Coincident", 3, 2, 0, 1),
    Sketcher.Constraint("Vertical", 1),
    Sketcher.Constraint("Vertical", 3),
    Sketcher.Constraint("Parallel", 0, 2),
    Sketcher.Constraint("DistanceY", 0, 2, -1, 1, 18.4),
    Sketcher.Constraint("Distance", 0, 49.19193),
    Sketcher.Constraint("DistanceY", 1, 1, 1, 2, 0.800343),
    Sketcher.Constraint("DistanceY", 2, 2, -1, 1, 24.53426),
    Sketcher.Constraint("DistanceX", -1, 1, 0, 2, 11.487925),
])
pad9 = doc.addObject("PartDesign::Pad", "Pad008")
body.addObject(pad9)
pad9.Profile = sketch13
pad9.Length = 4.18

# Sketch on XZ plane
sketch14 = doc.addObject("Sketcher::SketchObject", "Sketch013")
body.addObject(sketch14)
sketch14.AttachmentSupport = (doc.XZ_Plane, [""])
sketch14.MapMode = "FlatFace"
sketch14.AttachmentOffset = App.Placement(Vector(0, 0, -7.090687), App.Rotation())
sketch14.addGeometry([
    Part.LineSegment(Vector(10.687925, -18.283513, 0), Vector(11.956916, -18.464208, 0)),
    Part.LineSegment(Vector(11.956916, -18.464208, 0), Vector(10.687925, -18.4, 0)),
    Part.LineSegment(Vector(10.687925, -18.4, 0), Vector(10.687925, -18.283513, 0)),
], False)
sketch14.addConstraint([
    Sketcher.Constraint("Coincident", 0, 2, 1, 1),
    Sketcher.Constraint("Coincident", 1, 2, 2, 1),
    Sketcher.Constraint("Coincident", 2, 2, 0, 1),
    Sketcher.Constraint("Vertical", 2),
    Sketcher.Constraint("DistanceY", 1, 2, -1, 1, 18.4),
    Sketcher.Constraint("Distance", 0, 1.281791),
    Sketcher.Constraint("DistanceY", 2, 1, 2, 2, 0.116487),
    Sketcher.Constraint("DistanceX", 1, 2, 0, 2, 1.268991),
    Sketcher.Constraint("DistanceX", -1, 1, 0, 2, 11.956916),
])
pocket5 = doc.addObject("PartDesign::Pocket", "Pocket004")
body.addObject(pocket5)
pocket5.Profile = sketch14
pocket5.Length = 5
pocket5.Reversed = True
doc.recompute()

fillet8 = doc.addObject("PartDesign::Fillet", "Fillet007")
body.addObject(fillet8)
fillet8.Base = (pocket5, edges_at(pocket5, [(11.488, 5.001, -17.6)]))
fillet8.Radius = 1

doc.recompute()
